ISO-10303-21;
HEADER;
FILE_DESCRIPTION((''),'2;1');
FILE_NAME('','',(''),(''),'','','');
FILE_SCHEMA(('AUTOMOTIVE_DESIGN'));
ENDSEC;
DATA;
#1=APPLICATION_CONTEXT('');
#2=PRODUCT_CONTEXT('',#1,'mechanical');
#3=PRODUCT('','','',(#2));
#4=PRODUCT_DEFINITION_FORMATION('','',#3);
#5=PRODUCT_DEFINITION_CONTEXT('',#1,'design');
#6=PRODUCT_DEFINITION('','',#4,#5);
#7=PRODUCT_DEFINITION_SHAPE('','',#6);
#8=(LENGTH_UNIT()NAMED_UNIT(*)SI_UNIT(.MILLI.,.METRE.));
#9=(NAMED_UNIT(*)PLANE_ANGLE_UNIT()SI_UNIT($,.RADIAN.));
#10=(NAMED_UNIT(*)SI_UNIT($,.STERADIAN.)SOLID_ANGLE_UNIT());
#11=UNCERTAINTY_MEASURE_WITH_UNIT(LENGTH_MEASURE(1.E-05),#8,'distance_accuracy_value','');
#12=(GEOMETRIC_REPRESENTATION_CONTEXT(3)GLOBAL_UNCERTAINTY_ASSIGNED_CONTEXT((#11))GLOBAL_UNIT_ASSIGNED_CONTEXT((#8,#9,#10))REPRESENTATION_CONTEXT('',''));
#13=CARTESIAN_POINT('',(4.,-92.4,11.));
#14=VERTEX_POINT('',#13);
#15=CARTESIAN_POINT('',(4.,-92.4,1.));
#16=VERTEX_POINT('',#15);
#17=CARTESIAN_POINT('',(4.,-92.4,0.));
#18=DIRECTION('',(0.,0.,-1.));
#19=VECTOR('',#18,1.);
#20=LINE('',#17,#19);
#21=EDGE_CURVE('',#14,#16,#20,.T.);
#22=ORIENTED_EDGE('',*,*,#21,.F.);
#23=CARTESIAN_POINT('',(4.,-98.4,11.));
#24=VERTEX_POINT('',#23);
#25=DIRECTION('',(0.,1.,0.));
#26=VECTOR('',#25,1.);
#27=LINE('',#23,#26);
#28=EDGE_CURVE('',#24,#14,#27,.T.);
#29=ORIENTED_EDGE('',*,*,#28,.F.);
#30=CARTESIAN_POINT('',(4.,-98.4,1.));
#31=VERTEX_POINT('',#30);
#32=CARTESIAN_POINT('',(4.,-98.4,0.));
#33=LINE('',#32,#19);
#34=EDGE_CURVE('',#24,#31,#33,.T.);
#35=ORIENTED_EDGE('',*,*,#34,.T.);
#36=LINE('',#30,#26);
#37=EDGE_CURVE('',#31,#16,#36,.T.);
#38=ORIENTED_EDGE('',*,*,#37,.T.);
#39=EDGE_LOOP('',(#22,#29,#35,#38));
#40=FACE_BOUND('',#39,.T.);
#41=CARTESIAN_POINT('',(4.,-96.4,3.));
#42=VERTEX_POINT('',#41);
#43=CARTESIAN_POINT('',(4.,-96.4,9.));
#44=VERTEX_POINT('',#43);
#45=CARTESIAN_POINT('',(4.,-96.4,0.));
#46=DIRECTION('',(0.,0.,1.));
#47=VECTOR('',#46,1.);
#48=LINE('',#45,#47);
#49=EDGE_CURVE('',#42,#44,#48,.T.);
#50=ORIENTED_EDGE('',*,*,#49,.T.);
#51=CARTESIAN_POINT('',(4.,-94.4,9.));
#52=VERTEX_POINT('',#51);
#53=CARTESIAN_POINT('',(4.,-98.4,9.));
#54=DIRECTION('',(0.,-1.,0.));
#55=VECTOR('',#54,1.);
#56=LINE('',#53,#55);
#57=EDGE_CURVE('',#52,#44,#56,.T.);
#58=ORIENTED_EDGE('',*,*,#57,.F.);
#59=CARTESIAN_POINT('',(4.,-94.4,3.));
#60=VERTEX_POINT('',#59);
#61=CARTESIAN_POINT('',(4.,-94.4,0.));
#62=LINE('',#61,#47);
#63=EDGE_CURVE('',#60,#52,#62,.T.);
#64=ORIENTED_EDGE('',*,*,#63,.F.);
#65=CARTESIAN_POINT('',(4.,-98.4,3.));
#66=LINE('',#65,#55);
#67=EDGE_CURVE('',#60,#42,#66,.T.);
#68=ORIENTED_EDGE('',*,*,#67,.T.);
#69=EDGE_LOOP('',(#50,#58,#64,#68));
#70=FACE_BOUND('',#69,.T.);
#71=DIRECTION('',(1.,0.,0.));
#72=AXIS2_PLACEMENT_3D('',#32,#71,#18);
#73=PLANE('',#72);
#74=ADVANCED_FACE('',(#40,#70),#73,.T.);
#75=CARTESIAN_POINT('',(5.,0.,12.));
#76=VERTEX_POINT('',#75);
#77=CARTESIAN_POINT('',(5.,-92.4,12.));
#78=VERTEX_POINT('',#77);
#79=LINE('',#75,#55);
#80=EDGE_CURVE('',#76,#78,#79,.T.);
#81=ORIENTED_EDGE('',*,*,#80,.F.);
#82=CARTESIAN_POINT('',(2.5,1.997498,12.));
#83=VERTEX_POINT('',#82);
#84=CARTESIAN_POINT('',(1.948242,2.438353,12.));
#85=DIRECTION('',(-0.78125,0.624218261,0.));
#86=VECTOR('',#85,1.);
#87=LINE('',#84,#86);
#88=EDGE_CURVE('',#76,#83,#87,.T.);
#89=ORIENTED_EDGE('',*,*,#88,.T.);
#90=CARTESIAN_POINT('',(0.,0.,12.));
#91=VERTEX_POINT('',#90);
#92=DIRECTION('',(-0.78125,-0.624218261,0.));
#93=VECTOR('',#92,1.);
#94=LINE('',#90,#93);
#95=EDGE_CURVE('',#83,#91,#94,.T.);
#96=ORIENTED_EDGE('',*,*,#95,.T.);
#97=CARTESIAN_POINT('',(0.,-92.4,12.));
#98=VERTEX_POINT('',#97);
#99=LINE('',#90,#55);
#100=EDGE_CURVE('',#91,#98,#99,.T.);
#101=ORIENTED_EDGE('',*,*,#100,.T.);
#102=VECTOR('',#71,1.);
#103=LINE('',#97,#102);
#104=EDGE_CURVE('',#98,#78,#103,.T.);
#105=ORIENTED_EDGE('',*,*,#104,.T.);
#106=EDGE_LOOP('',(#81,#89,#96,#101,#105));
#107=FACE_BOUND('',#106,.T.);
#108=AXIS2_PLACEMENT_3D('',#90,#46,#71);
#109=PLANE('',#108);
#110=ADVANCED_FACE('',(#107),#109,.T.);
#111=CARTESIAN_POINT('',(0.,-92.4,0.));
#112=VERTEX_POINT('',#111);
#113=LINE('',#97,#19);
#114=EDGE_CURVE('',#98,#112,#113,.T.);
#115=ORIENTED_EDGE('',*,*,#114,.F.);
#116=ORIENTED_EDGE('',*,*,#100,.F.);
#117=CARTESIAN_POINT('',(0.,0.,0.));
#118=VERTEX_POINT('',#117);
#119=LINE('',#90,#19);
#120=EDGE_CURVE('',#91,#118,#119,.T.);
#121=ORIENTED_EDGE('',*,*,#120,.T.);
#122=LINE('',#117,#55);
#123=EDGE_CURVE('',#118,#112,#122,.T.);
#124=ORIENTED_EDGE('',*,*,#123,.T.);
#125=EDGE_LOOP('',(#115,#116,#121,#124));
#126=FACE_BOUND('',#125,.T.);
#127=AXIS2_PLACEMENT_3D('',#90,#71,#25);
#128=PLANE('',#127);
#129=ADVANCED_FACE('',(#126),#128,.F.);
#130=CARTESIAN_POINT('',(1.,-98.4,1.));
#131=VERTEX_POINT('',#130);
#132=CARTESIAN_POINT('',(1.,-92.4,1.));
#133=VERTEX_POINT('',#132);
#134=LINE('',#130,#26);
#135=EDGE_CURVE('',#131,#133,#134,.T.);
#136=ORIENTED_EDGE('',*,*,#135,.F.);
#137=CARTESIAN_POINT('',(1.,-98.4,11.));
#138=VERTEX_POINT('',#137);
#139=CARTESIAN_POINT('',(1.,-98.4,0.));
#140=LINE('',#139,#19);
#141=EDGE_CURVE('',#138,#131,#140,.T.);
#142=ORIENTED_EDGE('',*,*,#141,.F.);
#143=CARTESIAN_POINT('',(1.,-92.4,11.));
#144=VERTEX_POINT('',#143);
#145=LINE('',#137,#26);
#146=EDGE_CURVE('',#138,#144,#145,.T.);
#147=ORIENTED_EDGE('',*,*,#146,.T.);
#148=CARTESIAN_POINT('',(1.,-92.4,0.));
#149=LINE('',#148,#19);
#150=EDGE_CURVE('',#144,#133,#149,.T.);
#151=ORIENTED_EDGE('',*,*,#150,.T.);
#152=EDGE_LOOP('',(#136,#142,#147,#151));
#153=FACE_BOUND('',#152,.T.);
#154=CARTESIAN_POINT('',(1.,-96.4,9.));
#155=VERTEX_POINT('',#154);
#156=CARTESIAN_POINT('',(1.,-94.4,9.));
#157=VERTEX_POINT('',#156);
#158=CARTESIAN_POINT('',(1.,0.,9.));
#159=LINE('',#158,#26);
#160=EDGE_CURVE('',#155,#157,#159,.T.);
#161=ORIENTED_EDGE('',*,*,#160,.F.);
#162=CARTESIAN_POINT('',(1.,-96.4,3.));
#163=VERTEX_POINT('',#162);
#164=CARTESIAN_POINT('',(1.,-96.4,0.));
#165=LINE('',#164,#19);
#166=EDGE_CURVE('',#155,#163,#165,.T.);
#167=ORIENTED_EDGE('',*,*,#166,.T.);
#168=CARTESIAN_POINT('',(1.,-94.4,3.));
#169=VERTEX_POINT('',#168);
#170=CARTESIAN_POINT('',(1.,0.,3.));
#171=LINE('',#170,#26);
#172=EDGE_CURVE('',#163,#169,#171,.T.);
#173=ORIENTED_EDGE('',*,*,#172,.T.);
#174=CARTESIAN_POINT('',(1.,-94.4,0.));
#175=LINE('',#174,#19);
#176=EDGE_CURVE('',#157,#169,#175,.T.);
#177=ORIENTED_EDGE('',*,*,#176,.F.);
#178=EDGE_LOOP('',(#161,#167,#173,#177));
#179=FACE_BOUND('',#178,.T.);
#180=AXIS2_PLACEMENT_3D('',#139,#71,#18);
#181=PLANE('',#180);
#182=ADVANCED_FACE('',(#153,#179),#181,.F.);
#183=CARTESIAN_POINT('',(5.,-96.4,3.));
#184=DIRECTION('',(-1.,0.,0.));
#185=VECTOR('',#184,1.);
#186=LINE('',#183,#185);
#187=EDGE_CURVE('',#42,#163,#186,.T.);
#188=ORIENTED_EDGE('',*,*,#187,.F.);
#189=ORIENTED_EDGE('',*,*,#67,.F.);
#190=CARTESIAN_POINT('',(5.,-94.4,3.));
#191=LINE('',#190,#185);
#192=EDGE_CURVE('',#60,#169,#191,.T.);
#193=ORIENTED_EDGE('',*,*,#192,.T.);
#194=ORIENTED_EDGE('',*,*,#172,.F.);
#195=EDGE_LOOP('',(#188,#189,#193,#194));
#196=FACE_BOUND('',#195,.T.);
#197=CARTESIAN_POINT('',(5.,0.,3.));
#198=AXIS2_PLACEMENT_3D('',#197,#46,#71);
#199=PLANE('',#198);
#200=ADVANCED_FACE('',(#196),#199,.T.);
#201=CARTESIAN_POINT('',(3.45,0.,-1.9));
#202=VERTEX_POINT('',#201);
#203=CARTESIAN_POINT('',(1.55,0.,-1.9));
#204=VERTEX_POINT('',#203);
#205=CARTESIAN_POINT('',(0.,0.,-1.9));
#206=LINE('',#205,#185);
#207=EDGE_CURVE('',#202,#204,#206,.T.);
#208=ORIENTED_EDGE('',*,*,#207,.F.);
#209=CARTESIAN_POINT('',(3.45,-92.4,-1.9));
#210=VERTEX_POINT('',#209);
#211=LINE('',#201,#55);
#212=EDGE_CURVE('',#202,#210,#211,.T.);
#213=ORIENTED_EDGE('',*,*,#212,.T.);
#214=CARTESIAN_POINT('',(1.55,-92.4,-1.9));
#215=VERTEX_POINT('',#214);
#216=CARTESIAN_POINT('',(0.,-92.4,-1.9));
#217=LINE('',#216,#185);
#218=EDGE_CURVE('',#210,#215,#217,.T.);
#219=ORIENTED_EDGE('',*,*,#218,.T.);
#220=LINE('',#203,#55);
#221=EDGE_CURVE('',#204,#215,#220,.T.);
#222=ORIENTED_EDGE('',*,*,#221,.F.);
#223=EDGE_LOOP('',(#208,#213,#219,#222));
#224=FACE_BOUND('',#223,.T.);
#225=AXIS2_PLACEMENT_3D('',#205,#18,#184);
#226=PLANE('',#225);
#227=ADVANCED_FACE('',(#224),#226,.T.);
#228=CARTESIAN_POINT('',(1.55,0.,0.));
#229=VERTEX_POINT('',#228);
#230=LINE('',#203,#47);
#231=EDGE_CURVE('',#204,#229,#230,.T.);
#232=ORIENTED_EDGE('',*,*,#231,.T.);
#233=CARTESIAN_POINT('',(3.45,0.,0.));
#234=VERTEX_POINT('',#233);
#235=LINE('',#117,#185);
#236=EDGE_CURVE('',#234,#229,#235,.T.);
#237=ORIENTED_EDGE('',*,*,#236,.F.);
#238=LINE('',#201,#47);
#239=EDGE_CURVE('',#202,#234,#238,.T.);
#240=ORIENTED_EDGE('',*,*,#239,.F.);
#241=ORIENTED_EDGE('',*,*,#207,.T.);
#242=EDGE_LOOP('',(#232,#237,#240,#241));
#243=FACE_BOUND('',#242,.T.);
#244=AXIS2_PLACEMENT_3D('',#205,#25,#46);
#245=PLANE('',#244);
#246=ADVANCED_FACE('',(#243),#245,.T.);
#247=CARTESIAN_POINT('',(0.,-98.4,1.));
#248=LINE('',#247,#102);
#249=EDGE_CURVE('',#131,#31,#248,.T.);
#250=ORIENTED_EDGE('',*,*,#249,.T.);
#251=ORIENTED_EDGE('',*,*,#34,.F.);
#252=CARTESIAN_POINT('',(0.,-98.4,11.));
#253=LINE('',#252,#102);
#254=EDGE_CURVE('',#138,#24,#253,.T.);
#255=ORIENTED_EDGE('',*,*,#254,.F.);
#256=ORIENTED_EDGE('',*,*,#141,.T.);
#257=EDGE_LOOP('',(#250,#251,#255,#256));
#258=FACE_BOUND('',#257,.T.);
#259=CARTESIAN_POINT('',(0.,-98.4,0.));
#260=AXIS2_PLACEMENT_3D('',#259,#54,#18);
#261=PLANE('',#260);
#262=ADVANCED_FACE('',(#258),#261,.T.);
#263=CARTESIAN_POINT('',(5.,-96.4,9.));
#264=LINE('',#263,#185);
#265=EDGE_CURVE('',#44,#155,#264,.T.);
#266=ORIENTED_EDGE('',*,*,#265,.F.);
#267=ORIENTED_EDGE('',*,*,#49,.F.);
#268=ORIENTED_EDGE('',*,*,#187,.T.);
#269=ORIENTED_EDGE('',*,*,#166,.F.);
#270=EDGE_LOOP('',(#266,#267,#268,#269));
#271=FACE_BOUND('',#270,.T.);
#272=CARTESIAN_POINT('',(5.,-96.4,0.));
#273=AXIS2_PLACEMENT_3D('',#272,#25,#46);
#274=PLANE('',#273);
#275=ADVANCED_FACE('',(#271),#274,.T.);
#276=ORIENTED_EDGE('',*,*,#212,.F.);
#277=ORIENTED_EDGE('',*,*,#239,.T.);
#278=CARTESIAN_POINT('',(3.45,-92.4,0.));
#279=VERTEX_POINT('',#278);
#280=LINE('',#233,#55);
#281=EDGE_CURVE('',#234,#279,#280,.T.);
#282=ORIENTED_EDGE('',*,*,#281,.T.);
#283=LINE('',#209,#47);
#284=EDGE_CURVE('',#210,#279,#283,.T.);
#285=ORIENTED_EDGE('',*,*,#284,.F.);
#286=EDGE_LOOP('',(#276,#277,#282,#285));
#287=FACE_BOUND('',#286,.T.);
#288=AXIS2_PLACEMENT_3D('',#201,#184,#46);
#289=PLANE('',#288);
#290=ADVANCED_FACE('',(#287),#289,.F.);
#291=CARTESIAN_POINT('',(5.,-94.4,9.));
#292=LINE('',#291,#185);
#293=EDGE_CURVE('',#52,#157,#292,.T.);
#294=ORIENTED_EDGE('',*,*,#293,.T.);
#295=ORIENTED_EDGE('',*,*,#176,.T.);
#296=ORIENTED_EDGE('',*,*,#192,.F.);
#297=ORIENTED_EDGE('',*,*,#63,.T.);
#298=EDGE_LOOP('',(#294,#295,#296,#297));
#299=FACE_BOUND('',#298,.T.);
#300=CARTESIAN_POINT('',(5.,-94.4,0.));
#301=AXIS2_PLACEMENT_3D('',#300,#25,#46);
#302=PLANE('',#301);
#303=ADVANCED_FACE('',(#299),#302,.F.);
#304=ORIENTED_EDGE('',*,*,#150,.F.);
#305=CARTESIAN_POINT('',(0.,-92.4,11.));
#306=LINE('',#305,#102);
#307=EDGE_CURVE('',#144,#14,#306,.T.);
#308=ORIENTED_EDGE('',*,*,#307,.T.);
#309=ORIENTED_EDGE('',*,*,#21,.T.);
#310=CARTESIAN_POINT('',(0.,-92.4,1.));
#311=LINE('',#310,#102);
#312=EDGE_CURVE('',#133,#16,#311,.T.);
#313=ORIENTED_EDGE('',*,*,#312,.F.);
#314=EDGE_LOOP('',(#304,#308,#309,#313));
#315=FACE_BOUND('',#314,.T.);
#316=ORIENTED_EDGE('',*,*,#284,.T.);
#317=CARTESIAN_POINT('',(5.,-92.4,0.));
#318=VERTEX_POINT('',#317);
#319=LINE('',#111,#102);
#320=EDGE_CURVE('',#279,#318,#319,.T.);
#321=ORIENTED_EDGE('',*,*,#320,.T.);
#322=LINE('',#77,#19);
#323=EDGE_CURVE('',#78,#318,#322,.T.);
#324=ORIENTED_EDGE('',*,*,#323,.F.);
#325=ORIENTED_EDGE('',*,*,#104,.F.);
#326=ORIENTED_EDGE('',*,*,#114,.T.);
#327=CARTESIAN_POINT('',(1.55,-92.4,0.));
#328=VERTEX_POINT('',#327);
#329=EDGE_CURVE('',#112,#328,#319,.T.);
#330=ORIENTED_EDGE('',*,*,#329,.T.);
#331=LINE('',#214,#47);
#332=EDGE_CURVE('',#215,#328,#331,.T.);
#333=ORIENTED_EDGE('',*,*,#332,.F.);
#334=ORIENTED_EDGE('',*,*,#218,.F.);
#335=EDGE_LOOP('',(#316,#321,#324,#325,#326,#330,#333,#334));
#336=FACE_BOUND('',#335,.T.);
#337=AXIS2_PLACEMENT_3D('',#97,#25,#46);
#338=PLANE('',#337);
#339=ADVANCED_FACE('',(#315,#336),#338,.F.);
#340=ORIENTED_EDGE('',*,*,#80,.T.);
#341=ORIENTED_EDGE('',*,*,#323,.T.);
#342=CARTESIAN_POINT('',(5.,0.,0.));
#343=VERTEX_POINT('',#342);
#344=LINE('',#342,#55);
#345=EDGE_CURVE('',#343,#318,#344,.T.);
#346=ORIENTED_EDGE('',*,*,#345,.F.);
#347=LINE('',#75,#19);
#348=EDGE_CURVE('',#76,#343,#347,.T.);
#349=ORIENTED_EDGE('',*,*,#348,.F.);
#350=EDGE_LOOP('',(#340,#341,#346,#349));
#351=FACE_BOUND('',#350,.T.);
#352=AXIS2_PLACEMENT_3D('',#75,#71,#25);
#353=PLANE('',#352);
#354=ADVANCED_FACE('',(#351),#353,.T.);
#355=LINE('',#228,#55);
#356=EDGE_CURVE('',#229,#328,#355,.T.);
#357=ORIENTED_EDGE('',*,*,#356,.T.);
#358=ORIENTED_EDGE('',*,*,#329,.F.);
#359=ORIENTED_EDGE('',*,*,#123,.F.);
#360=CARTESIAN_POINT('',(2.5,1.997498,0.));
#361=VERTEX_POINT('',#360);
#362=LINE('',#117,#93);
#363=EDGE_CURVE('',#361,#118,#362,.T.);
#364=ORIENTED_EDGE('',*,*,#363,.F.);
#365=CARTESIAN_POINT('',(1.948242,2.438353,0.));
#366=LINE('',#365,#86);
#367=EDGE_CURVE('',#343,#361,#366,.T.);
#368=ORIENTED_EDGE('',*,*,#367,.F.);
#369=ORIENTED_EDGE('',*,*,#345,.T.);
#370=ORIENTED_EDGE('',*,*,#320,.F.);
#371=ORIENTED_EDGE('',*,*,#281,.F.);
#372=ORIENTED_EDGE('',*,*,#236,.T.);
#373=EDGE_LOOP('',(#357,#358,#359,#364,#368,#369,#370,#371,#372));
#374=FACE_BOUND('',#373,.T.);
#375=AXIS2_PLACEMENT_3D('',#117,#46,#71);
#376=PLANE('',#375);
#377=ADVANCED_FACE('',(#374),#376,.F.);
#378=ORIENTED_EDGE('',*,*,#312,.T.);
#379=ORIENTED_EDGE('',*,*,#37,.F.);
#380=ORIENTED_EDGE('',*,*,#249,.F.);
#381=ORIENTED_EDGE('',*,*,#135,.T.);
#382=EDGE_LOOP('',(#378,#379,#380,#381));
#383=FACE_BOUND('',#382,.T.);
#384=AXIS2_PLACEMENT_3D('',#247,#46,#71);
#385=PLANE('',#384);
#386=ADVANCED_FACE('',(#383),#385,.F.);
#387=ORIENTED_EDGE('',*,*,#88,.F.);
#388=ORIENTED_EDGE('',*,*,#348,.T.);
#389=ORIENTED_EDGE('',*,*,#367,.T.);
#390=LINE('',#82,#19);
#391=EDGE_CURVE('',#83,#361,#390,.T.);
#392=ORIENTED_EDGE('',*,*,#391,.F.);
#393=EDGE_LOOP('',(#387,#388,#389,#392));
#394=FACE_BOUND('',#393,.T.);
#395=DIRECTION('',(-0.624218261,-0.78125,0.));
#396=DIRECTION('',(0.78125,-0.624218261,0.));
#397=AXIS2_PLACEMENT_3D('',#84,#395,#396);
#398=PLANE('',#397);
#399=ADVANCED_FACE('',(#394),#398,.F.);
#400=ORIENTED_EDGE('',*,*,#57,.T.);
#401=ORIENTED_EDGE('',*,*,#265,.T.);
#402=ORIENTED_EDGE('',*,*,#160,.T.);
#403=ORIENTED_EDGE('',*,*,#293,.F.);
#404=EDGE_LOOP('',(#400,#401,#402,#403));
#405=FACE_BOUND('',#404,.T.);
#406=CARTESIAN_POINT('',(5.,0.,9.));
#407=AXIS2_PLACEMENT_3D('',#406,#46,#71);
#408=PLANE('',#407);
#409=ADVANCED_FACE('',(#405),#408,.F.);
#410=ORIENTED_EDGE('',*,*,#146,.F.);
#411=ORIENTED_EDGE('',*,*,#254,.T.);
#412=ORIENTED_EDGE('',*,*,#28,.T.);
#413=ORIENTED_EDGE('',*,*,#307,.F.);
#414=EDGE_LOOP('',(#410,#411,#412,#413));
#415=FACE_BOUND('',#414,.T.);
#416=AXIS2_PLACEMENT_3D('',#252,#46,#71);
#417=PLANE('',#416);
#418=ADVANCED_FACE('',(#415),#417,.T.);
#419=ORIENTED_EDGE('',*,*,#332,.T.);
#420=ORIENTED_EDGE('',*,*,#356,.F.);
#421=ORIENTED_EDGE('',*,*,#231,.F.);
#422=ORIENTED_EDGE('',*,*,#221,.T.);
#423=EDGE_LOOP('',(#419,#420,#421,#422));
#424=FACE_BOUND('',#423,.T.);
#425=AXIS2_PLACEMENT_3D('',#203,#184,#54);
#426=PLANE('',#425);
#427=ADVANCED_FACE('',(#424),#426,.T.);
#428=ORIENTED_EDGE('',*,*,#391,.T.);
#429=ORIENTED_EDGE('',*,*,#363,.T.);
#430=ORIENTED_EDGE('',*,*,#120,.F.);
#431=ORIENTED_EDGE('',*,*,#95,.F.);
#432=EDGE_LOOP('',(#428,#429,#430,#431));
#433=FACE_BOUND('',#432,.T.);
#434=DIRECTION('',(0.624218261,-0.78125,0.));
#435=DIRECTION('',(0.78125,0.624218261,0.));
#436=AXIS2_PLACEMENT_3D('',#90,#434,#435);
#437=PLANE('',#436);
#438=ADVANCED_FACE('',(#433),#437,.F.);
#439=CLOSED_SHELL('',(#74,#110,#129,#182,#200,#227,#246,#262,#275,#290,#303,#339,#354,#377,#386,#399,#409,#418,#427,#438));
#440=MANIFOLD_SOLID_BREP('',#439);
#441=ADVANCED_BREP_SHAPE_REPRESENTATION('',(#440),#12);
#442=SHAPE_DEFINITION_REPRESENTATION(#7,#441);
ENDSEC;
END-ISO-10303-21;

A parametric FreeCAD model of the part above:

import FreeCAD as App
import Part
import Sketcher


def add_polygon(sketch, points):
    """Adds a closed chain of lines whose ends are joined by coincident constraints."""
    first, n = sketch.GeometryCount, len(points)
    for a, b in zip(points, points[1:] + points[:1]):
        sketch.addGeometry(Part.LineSegment(App.Vector(*a, 0), App.Vector(*b, 0)), False)
    for i in range(n):
        sketch.addConstraint(Sketcher.Constraint("Coincident", first + i, 2, first + (i + 1) % n, 1))

doc = App.newDocument("Part")
params = doc.addObject("Spreadsheet::Sheet", "Params")
for row, (alias, value) in enumerate([
    ("sketch1_width", "5 mm"),
    ("sketch1_height", "92.4 mm"),
    ("sketch1_length", "3.2 mm"),
    ("pad1_length", "12 mm"),
    ("sketch2_width", "1.9 mm"),
    ("sketch2_height", "92.4 mm"),
    ("pad2_length", "1.9 mm"),
    ("sketch3_width", "3 mm"),
    ("sketch3_height", "10 mm"),
    ("pad3_length", "6 mm"),
    ("sketch4_width", "2 mm"),
    ("sketch4_height", "6 mm"),
], start=1):
    params.set(f"A{row}", alias)
    params.set(f"B{row}", "=" + value)
    params.setAlias(f"B{row}", alias)

body = doc.addObject("PartDesign::Body", "Body")

# Sketch on XY plane
sketch1 = body.newObject("Sketcher::SketchObject", "Sketch")
sketch1.AttachmentSupport = (doc.getObject("XY_Plane"), [""])
sketch1.MapMode = "FlatFace"
add_polygon(sketch1, [(0, 0), (0, -92.4), (5, -92.4), (5, 0), (2.5, 2)])  # lines 0-4
sketch1.addConstraint([
    Sketcher.Constraint("Vertical", 0),
    Sketcher.Constraint("Horizontal", 1),
    Sketcher.Constraint("Vertical", 2),
    Sketcher.Constraint("Coincident", 4, 2, -1, 1),
    Sketcher.Constraint("PointOnObject", 2, 2, -1),
    Sketcher.Constraint("Equal", 3, 4),
    Sketcher.Constraint("DistanceX", 1, 1, 1, 2, 5.0),
    Sketcher.Constraint("DistanceY", 0, 2, 0, 1, 92.4),
    Sketcher.Constraint("Distance", 3, 3.2),
])
sketch1.setExpression("Constraints[11]", "Params.sketch1_width")
sketch1.setExpression("Constraints[12]", "Params.sketch1_height")
sketch1.setExpression("Constraints[13]", "Params.sketch1_length")
pad1 = body.newObject("PartDesign::Pad", "Pad")
pad1.Profile = sketch1
pad1.setExpression("Length", "Params.pad1_length")

# Sketch on XY plane
sketch2 = body.newObject("Sketcher::SketchObject", "Sketch001")
sketch2.AttachmentSupport = (doc.getObject("XY_Plane"), [""])
sketch2.MapMode = "FlatFace"
add_polygon(sketch2, [(1.6, 0), (3.5, 0), (3.5, -92.4), (1.6, -92.4)])  # lines 0-3
sketch2.addConstraint([
    Sketcher.Constraint("Horizontal", 0),
    Sketcher.Constraint("Vertical", 1),
    Sketcher.Constraint("Horizontal", 2),
    Sketcher.Constraint("Vertical", 3),
    Sketcher.Constraint("PointOnObject", 0, 2, -1),
    Sketcher.Constraint("DistanceX", 0, 1, 0, 2, 1.9),
    Sketcher.Constraint("DistanceY", 1, 2, 1, 1, 92.4),
    Sketcher.Constraint("DistanceX", -1, 1, 0, 2, 3.45),
])
sketch2.setExpression("Constraints[9]", "Params.sketch2_width")
sketch2.setExpression("Constraints[10]", "Params.sketch2_height")
pad2 = body.newObject("PartDesign::Pad", "Pad001")
pad2.Profile = sketch2
pad2.setExpression("Length", "Params.pad2_length")
pad2.Reversed = True

# Sketch on XZ plane
sketch3 = body.newObject("Sketcher::SketchObject", "Sketch002")
sketch3.AttachmentSupport = (doc.getObject("XZ_Plane"), [""])
sketch3.MapMode = "FlatFace"
sketch3.AttachmentOffset = App.Placement(App.Vector(0, 0, 92.4), App.Rotation())
add_polygon(sketch3, [(1, 11), (1, 1), (4, 1), (4, 11)])  # lines 0-3
sketch3.addConstraint([
    Sketcher.Constraint("Vertical", 0),
    Sketcher.Constraint("Horizontal", 1),
    Sketcher.Constraint("Vertical", 2),
    Sketcher.Constraint("Horizontal", 3),
    Sketcher.Constraint("DistanceX", 1, 1, 1, 2, 3.0),
    Sketcher.Constraint("DistanceY", 0, 2, 0, 1, 10.0),
    Sketcher.Constraint("DistanceX", -1, 1, 0, 2, 1.0),
    Sketcher.Constraint("DistanceY", -1, 1, 0, 2, 1.0),
])
sketch3.setExpression("Constraints[8]", "Params.sketch3_width")
sketch3.setExpression("Constraints[9]", "Params.sketch3_height")
pad3 = body.newObject("PartDesign::Pad", "Pad002")
pad3.Profile = sketch3
pad3.setExpression("Length", "Params.pad3_length")

# Sketch on YZ plane
sketch4 = body.newObject("Sketcher::SketchObject", "Sketch003")
sketch4.AttachmentSupport = (doc.getObject("YZ_Plane"), [""])
sketch4.MapMode = "FlatFace"
sketch4.AttachmentOffset = App.Placement(App.Vector(0, 0, 4), App.Rotation())
add_polygon(sketch4, [(-94.4, 9), (-96.4, 9), (-96.4, 3), (-94.4, 3)])  # lines 0-3
sketch4.addConstraint([
    Sketcher.Constraint("Horizontal", 0),
    Sketcher.Constraint("Vertical", 1),
    Sketcher.Constraint("Horizontal", 2),
    Sketcher.Constraint("Vertical", 3),
    Sketcher.Constraint("DistanceX", 0, 2, 0, 1, 2.0),
    Sketcher.Constraint("DistanceY", 1, 2, 1, 1, 6.0),
    Sketcher.Constraint("DistanceY", -1, 1, 0, 2, 9.0),
    Sketcher.Constraint("DistanceX", 0, 2, -1, 1, 96.4),
])
sketch4.setExpression("Constraints[8]", "Params.sketch4_width")
sketch4.setExpression("Constraints[9]", "Params.sketch4_height")
pocket1 = body.newObject("PartDesign::Pocket", "Pocket")
pocket1.Profile = sketch4
pocket1.Type = "ThroughAll"
pocket1.Midplane = True

doc.recompute()
